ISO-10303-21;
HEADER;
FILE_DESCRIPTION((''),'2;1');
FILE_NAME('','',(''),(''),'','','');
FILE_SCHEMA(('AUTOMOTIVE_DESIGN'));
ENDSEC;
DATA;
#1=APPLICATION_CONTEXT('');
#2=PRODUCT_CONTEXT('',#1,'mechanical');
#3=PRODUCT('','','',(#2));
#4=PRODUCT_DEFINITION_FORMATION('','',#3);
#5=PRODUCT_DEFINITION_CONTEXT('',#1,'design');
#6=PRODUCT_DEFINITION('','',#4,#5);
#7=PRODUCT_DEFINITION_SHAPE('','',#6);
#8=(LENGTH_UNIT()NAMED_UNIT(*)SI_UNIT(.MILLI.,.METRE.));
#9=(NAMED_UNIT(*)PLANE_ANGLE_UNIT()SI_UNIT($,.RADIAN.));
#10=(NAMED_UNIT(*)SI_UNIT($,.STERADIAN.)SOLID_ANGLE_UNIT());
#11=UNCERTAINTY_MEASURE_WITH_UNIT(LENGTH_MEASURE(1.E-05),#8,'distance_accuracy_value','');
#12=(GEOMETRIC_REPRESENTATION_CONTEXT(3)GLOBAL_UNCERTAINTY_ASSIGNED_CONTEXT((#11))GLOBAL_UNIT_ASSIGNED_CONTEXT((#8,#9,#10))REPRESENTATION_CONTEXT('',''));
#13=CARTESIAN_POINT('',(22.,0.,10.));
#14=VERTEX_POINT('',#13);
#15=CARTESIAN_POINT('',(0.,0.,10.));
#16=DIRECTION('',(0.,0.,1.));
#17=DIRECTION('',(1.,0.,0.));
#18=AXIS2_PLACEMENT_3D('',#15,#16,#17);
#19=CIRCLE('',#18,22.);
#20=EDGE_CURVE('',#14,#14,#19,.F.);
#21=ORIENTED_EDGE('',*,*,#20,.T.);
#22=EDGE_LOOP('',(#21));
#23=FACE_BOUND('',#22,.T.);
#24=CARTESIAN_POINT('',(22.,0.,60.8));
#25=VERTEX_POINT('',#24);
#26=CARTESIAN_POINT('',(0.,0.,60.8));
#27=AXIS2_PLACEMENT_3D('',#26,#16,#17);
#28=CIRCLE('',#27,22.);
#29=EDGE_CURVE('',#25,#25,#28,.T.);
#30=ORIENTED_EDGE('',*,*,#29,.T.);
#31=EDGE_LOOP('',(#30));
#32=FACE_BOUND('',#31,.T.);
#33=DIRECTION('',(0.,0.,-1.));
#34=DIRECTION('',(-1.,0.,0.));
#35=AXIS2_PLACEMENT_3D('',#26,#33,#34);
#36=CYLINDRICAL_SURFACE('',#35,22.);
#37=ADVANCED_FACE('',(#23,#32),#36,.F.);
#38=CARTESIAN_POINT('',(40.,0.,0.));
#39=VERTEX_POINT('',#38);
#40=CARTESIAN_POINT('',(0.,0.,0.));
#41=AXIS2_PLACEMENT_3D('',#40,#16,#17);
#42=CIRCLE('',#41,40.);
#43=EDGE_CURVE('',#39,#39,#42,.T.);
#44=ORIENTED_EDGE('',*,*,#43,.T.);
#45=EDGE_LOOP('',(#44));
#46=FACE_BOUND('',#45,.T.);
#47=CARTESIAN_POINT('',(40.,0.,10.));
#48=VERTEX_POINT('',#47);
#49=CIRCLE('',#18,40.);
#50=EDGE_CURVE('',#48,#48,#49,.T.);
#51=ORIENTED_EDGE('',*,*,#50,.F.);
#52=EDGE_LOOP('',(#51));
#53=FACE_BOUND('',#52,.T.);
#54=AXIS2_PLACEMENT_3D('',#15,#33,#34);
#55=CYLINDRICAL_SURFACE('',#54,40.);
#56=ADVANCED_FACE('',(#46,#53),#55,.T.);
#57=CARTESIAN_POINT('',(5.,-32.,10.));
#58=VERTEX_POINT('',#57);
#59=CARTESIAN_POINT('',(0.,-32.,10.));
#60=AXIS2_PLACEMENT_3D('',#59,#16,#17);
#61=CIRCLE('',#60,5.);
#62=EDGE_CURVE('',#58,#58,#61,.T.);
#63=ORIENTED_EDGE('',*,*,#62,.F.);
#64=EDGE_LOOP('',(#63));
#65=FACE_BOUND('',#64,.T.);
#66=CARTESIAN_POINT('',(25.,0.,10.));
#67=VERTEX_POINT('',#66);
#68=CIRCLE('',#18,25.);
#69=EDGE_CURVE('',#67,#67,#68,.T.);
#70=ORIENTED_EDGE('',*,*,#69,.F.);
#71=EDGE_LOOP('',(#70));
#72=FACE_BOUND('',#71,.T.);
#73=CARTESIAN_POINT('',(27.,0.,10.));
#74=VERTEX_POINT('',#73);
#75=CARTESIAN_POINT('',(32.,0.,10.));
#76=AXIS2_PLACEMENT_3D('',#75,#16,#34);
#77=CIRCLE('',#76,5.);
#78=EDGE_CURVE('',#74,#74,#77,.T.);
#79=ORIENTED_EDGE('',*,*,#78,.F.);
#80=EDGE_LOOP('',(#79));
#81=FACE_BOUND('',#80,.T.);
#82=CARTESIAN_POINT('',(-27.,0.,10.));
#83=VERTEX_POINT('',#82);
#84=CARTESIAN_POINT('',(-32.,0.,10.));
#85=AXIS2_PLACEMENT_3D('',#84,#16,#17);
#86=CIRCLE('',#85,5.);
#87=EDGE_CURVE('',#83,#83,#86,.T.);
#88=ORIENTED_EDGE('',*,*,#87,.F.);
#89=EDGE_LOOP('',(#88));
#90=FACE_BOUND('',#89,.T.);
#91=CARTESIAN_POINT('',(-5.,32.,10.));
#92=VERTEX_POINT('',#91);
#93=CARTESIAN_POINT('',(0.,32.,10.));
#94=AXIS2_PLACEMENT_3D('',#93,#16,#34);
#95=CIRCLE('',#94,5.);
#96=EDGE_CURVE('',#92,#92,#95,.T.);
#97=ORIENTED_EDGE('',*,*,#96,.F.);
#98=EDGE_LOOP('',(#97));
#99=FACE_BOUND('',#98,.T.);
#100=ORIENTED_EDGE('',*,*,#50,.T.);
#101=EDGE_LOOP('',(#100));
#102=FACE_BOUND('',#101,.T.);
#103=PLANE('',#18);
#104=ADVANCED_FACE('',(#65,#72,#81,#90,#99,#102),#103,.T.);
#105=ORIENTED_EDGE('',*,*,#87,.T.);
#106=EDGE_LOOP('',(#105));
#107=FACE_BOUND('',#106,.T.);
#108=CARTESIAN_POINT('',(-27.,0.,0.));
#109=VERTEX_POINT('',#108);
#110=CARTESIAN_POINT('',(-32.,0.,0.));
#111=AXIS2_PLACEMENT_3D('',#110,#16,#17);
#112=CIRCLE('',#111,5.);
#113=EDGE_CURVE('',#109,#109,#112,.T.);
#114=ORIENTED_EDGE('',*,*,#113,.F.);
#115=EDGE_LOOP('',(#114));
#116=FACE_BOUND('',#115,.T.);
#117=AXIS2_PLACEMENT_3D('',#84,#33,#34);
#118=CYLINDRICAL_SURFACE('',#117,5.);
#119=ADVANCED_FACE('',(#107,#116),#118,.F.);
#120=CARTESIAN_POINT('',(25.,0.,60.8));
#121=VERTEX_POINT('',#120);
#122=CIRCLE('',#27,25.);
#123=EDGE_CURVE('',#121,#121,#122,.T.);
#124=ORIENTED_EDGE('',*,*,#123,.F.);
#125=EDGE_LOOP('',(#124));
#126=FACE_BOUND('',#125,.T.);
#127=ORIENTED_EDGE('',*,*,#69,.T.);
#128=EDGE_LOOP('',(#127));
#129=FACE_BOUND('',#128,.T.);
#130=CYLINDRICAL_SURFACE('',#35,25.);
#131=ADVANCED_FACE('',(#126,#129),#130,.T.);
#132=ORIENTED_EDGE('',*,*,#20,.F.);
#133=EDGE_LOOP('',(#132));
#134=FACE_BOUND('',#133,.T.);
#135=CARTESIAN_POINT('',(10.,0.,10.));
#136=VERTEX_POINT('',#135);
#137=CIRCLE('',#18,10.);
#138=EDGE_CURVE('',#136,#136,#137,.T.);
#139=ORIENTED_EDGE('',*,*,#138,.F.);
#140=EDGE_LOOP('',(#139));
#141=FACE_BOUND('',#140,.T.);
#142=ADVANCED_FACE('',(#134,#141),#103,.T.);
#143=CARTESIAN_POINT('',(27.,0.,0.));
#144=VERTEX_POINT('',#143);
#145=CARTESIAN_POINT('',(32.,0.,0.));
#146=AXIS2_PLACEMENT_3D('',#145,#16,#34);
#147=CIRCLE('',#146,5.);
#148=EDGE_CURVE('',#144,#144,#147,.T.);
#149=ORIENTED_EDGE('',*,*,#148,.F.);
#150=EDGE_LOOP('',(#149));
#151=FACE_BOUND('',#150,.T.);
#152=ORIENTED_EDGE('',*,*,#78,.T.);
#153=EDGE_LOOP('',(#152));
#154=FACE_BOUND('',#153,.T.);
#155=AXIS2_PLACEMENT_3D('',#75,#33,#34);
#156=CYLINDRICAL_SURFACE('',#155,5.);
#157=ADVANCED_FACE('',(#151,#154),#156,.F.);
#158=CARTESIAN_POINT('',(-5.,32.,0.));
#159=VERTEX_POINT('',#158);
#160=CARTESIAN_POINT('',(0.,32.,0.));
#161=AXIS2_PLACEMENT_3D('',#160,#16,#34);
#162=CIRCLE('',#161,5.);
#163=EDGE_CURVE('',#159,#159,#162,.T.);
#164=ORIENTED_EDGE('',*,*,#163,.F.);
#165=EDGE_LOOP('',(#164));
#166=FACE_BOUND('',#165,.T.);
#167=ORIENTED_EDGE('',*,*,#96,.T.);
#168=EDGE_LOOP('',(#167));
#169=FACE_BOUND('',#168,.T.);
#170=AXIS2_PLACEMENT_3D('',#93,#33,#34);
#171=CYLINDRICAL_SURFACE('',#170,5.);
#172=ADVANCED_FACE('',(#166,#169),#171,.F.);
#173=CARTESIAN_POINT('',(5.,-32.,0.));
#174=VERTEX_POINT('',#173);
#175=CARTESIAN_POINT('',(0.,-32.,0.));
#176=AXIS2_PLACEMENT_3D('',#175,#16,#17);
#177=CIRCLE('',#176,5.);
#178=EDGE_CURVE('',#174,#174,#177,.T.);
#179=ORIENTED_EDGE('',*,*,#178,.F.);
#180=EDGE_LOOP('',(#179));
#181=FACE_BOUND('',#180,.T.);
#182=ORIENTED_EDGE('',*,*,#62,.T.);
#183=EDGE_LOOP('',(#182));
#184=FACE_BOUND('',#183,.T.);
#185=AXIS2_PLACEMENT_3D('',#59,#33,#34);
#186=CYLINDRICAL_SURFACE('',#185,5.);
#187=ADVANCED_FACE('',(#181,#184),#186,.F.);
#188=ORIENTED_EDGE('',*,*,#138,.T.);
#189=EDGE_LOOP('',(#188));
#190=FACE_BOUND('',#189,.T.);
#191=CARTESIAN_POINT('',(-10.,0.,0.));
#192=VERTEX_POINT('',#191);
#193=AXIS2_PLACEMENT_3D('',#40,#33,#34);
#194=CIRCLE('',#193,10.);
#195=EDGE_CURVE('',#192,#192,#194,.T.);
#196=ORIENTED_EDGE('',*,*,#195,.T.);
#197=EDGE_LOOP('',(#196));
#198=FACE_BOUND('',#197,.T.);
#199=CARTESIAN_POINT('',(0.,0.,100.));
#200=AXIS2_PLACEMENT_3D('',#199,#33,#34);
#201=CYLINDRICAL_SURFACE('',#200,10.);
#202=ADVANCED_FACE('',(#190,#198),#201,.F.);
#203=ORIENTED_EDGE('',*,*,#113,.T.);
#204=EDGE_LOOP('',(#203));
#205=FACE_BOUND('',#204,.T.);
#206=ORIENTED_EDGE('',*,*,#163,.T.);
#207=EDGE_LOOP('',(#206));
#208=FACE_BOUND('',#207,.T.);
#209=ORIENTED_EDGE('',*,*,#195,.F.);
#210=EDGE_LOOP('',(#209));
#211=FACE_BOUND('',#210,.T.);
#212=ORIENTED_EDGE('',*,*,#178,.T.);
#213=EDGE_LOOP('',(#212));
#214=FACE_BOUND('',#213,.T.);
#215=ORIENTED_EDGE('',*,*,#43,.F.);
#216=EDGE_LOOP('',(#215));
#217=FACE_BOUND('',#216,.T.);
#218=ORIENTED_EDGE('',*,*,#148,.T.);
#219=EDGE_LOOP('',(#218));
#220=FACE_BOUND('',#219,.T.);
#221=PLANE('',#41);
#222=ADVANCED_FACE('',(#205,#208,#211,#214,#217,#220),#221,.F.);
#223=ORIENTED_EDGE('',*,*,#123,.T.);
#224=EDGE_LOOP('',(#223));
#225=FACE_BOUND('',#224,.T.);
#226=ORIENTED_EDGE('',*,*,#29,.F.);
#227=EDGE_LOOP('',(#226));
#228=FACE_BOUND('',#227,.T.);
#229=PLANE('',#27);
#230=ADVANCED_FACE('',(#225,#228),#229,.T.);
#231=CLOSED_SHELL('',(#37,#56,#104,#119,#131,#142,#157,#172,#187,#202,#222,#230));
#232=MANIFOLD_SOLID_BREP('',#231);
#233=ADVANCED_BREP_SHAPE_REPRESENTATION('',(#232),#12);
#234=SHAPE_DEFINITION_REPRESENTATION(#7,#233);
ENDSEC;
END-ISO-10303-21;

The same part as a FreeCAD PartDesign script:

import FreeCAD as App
import Part
import Sketcher

V = App.Vector
Q = App.Units.Quantity

doc = App.newDocument("Part")
params = doc.addObject("Spreadsheet::Sheet", "Params")
for row, (alias, value) in enumerate([
    ("sketch1_diameter", "80 mm"),
    ("sketch1_diameter2", "10 mm"),
    ("pad1_length", "10 mm"),
    ("sketch2_diameter", "50 mm"),
    ("sketch2_diameter2", "44 mm"),
    ("pad2_length", "50.8 mm"),
    ("sketch3_diameter", "20 mm"),
    ("pocket1_length", "100 mm"),
], start=1):
    params.set(f"A{row}", alias)
    params.set(f"B{row}", "=" + value)
    params.setAlias(f"B{row}", alias)

body = doc.addObject("PartDesign::Body", "Body")

# Sketch on XY plane
sketch1 = doc.addObject("Sketcher::SketchObject", "Sketch")
body.addObject(sketch1)
sketch1.AttachmentSupport = (doc.XY_Plane, [""])
sketch1.MapMode = "FlatFace"
sketch1.addGeometry([
    Part.Circle(V(0, 0, 0), V(0, 0, 1), 40),  # 0
    Part.Circle(V(0, -32, 0), V(0, 0, 1), 5),  # 1
    Part.Circle(V(-32, 0, 0), V(0, 0, 1), 5),  # 2
    Part.Circle(V(32, 0, 0), V(0, 0, 1), 5),  # 3
    Part.Circle(V(0, 32, 0), V(0, 0, 1), 5),  # 4
], False)
sketch1.addConstraint([
    Sketcher.Constraint("Coincident", 0, 3, -1, 1),
    Sketcher.Constraint("Equal", 1, 2),
    Sketcher.Constraint("Equal", 2, 3),
    Sketcher.Constraint("Equal", 3, 4),
    Sketcher.Constraint("Symmetric", 2, 3, 3, 3, -1, 1),
    Sketcher.Constraint("Symmetric", 1, 3, 4, 3, -1, 1),
    Sketcher.Constraint("PointOnObject", 1, 3, -2),
    Sketcher.Constraint("PointOnObject", 2, 3, -1),
    Sketcher.Constraint("Diameter", 0, Q("80 mm")),
    Sketcher.Constraint("Diameter", 1, Q("10 mm")),
    Sketcher.Constraint("DistanceY", 1, 3, -1, 1, Q("32 mm")),
    Sketcher.Constraint("DistanceX", 2, 3, -1, 1, Q("32 mm")),
])
sketch1.setExpression("Constraints[8]", "Params.sketch1_diameter")
sketch1.setExpression("Constraints[9]", "Params.sketch1_diameter2")
pad1 = doc.addObject("PartDesign::Pad", "Pad")
body.addObject(pad1)
pad1.Profile = sketch1
pad1.setExpression("Length", "Params.pad1_length")

# Sketch on XY plane
sketch2 = doc.addObject("Sketcher::SketchObject", "Sketch001")
body.addObject(sketch2)
sketch2.AttachmentSupport = (doc.XY_Plane, [""])
sketch2.MapMode = "FlatFace"
sketch2.AttachmentOffset = App.Placement(V(0, 0, 10), App.Rotation())
sketch2.addGeometry([
    Part.Circle(V(0, 0, 0), V(0, 0, 1), 25),
    Part.Circle(V(0, 0, 0), V(0, 0, 1), 22),
], False)
sketch2.addConstraint([
    Sketcher.Constraint("Coincident", 0, 3, -1, 1),
    Sketcher.Constraint("Coincident", 1, 3, -1, 1),
    Sketcher.Constraint("Diameter", 0, Q("50 mm")),
    Sketcher.Constraint("Diameter", 1, Q("44 mm")),
])
sketch2.setExpression("Constraints[2]", "Params.sketch2_diameter")
sketch2.setExpression("Constraints[3]", "Params.sketch2_diameter2")
pad2 = doc.addObject("PartDesign::Pad", "Pad001")
body.addObject(pad2)
pad2.Profile = sketch2
pad2.setExpression("Length", "Params.pad2_length")

# Sketch on XY plane
sketch3 = doc.addObject("Sketcher::SketchObject", "Sketch002")
body.addObject(sketch3)
sketch3.AttachmentSupport = (doc.XY_Plane, [""])
sketch3.MapMode = "FlatFace"
sketch3.addGeometry(Part.Circle(V(0, 0, 0), V(0, 0, 1), 10), False)
sketch3.addConstraint([
    Sketcher.Constraint("Coincident", 0, 3, -1, 1),
    Sketcher.Constraint("Diameter", 0, Q("20 mm")),
])
sketch3.setExpression("Constraints[1]", "Params.sketch3_diameter")
pocket1 = doc.addObject("PartDesign::Pocket", "Pocket")
body.addObject(pocket1)
pocket1.Profile = sketch3
pocket1.setExpression("Length", "Params.pocket1_length")
pocket1.Reversed = True

doc.recompute()
